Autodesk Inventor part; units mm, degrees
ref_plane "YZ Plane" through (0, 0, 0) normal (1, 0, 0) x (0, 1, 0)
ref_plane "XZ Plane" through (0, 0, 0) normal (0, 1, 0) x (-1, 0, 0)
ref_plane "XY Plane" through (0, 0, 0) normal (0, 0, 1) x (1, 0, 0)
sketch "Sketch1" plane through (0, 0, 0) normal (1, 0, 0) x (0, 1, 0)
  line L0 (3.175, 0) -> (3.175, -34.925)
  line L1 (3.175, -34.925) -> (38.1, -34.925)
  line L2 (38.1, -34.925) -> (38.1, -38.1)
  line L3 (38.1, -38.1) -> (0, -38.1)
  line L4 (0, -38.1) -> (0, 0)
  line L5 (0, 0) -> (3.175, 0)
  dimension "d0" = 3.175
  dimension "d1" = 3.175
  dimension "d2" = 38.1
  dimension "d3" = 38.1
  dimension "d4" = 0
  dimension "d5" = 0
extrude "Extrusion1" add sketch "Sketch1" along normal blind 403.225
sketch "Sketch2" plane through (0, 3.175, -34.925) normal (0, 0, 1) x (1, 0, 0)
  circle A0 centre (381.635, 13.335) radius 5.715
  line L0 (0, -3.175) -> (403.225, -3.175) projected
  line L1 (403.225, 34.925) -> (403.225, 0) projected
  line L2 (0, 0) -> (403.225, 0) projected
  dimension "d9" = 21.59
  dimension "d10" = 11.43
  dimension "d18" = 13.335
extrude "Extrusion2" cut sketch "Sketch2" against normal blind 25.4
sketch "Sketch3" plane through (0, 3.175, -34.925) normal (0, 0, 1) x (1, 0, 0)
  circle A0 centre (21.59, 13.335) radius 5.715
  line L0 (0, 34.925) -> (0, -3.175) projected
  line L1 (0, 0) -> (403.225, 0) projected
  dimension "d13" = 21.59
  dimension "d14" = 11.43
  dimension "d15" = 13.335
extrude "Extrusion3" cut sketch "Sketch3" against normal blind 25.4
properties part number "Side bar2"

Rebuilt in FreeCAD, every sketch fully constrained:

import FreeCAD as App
import Part
import Sketcher
from FreeCAD import Vector
Q = App.Units.Quantity

doc = App.newDocument("Part")
body = doc.addObject("PartDesign::Body", "Body")

# Sketch on YZ plane
sketch1 = doc.addObject("Sketcher::SketchObject", "Sketch")
body.addObject(sketch1)
sketch1.AttachmentSupport = (doc.YZ_Plane, [""])
sketch1.MapMode = "FlatFace"
sketch1.addGeometry([
    Part.LineSegment(Vector(3.175, -34.925, 0), Vector(3.175, 0, 0)),  # 0
    Part.LineSegment(Vector(3.175, 0, 0), Vector(0, 0, 0)),  # 1
    Part.LineSegment(Vector(0, 0, 0), Vector(0, -38.1, 0)),  # 2
    Part.LineSegment(Vector(0, -38.1, 0), Vector(38.1, -38.1, 0)),  # 3
    Part.LineSegment(Vector(38.1, -38.1, 0), Vector(38.1, -34.925, 0)),  # 4
    Part.LineSegment(Vector(38.1, -34.925, 0), Vector(3.175, -34.925, 0)),  # 5
], False)
sketch1.addConstraint([
    Sketcher.Constraint("Coincident", 0, 2, 1, 1),
    Sketcher.Constraint("Coincident", 1, 2, 2, 1),
    Sketcher.Constraint("Coincident", 2, 2, 3, 1),
    Sketcher.Constraint("Coincident", 3, 2, 4, 1),
    Sketcher.Constraint("Coincident", 4, 2, 5, 1),
    Sketcher.Constraint("Coincident", 5, 2, 0, 1),
    Sketcher.Constraint("Vertical", 0),
    Sketcher.Constraint("Horizontal", 1),
    Sketcher.Constraint("Vertical", 2),
    Sketcher.Constraint("Horizontal", 3),
    Sketcher.Constraint("Vertical", 4),
    Sketcher.Constraint("Horizontal", 5),
    Sketcher.Constraint("Coincident", 1, 2, -1, 1),
    Sketcher.Constraint("Equal", 5, 0),
    Sketcher.Constraint("Equal", 3, 2),
    Sketcher.Constraint("DistanceX", 3, 1, 3, 2, Q("1.5 in")),
    Sketcher.Constraint("DistanceX", 1, 2, 1, 1, Q("0.125 in")),
])
pad1 = doc.addObject("PartDesign::Pad", "Pad")
body.addObject(pad1)
pad1.Profile = sketch1
pad1.Length = Q("15.875 in")

# Sketch on XY plane
sketch2 = doc.addObject("Sketcher::SketchObject", "Sketch001")
body.addObject(sketch2)
sketch2.AttachmentSupport = (doc.XY_Plane, [""])
sketch2.MapMode = "FlatFace"
sketch2.AttachmentOffset = App.Placement(Vector(0, 0, -1.375 * 25.4), App.Rotation())
sketch2.addGeometry(Part.Circle(Vector(381.635, 16.51, 0), Vector(0, 0, 1), 5.715), False)
sketch2.addConstraint([
    Sketcher.Constraint("Diameter", 0, Q("0.45 in")),
    Sketcher.Constraint("DistanceY", -1, 1, 0, 3, Q("0.65 in")),
    Sketcher.Constraint("DistanceX", -1, 1, 0, 3, Q("15.025 in")),
])
pocket1 = doc.addObject("PartDesign::Pocket", "Pocket")
body.addObject(pocket1)
pocket1.Profile = sketch2
pocket1.Length = Q("1 in")

# Sketch on XY plane
sketch3 = doc.addObject("Sketcher::SketchObject", "Sketch002")
body.addObject(sketch3)
sketch3.AttachmentSupport = (doc.XY_Plane, [""])
sketch3.MapMode = "FlatFace"
sketch3.AttachmentOffset = App.Placement(Vector(0, 0, -1.375 * 25.4), App.Rotation())
sketch3.addGeometry(Part.Circle(Vector(21.59, 16.51, 0), Vector(0, 0, 1), 5.715), False)
sketch3.addConstraint([
    Sketcher.Constraint("Diameter", 0, Q("0.45 in")),
    Sketcher.Constraint("DistanceX", -1, 1, 0, 3, Q("0.85 in")),
    Sketcher.Constraint("DistanceY", -1, 1, 0, 3, Q("0.65 in")),
])
pocket2 = doc.addObject("PartDesign::Pocket", "Pocket001")
body.addObject(pocket2)
pocket2.Profile = sketch3
pocket2.Length = Q("1 in")

doc.recompute()
